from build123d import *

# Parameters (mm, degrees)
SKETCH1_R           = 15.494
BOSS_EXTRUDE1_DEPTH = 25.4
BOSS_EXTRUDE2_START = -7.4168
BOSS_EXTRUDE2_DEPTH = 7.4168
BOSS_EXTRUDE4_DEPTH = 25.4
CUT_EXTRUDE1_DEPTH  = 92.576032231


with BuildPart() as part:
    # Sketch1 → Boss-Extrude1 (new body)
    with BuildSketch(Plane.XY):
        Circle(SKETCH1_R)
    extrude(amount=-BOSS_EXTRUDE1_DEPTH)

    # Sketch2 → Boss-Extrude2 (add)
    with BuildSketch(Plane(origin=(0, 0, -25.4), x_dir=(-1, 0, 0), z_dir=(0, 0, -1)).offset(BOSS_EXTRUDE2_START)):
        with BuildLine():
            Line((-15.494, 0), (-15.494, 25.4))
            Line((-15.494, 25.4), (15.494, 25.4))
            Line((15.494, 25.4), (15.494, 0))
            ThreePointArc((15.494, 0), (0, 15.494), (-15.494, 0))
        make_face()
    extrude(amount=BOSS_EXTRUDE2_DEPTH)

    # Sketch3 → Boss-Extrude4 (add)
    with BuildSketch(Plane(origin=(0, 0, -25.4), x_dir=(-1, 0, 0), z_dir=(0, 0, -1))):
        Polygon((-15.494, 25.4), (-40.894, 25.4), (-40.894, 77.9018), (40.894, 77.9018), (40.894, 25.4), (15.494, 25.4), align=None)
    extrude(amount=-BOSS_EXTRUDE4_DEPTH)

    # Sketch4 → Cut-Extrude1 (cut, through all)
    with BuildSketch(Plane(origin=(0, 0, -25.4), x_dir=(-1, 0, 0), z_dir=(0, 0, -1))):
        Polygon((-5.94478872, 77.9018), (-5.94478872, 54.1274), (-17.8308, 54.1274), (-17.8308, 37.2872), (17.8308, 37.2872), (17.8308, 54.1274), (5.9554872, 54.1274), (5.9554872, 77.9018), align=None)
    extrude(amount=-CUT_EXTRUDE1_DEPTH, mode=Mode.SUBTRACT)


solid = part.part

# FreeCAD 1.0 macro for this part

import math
import FreeCAD as App
import Part
import Sketcher
from FreeCAD import Vector
Q = App.Units.Quantity

doc = App.newDocument("Part")
params = doc.addObject("Spreadsheet::Sheet", "Params")
for row, (alias, value) in enumerate([
    ("sketch1_diameter", "1.22 in"),
    ("pad1_length", "1 in"),
    ("sketch2_height", "1 in"),
    ("sketch2_radius", "0.61 in"),
    ("pad2_length", "0.292 in"),
    ("sketch3_width", "3.22 in"),
    ("sketch3_height", "2.067 in"),
    ("pad3_length", "1 in"),
    ("sketch4_width", "1.404 in"),
    ("sketch4_height", "0.936 in"),
    ("sketch4_height2", "0.663 in"),
], start=1):
    params.set(f"A{row}", alias)
    params.set(f"B{row}", "=" + value)
    params.setAlias(f"B{row}", alias)

body = doc.addObject("PartDesign::Body", "Body")

# Sketch on XY plane
sketch1 = body.newObject("Sketcher::SketchObject", "Sketch")
sketch1.AttachmentSupport = (doc.getObject("XY_Plane"), [""])
sketch1.MapMode = "FlatFace"
sketch1.addGeometry(Part.Circle(Vector(0, 0, 0), Vector(0, 0, 1), 15), False)
sketch1.addConstraint(Sketcher.Constraint("Coincident", 0, 3, -1, 1))
sketch1.addConstraint(Sketcher.Constraint("Diameter", 0, Q("1.22 in")))
sketch1.setExpression("Constraints[1]", "Params.sketch1_diameter")
pad1 = body.newObject("PartDesign::Pad", "Pad")
pad1.Profile = sketch1
pad1.setExpression("Length", "Params.pad1_length")
pad1.Reversed = True

# Sketch on XY plane
sketch2 = body.newObject("Sketcher::SketchObject", "Sketch001")
sketch2.AttachmentSupport = (doc.getObject("XY_Plane"), [""])
sketch2.MapMode = "FlatFace"
sketch2.AttachmentOffset = App.Placement(Vector(0, 0, -0.708 * 25.4), App.Rotation())
sketch2.addGeometry(Part.LineSegment(Vector(15, 25, 0), Vector(15, 0, 0)), False)
sketch2.addGeometry(Part.ArcOfCircle(Part.Circle(Vector(0, 0, 0), Vector(0, 0, 1), 15), math.radians(0), math.radians(180)), False)
sketch2.addGeometry(Part.LineSegment(Vector(-15, 0, 0), Vector(-15, 25, 0)), False)
sketch2.addGeometry(Part.LineSegment(Vector(-15, 25, 0), Vector(15, 25, 0)), False)
sketch2.addConstraint(Sketcher.Constraint("Tangent", 0, 2, 1, 1))
sketch2.addConstraint(Sketcher.Constraint("Tangent", 1, 2, 2, 1))
sketch2.addConstraint(Sketcher.Constraint("Coincident", 2, 2, 3, 1))
sketch2.addConstraint(Sketcher.Constraint("Coincident", 3, 2, 0, 1))
sketch2.addConstraint(Sketcher.Constraint("Vertical", 0))
sketch2.addConstraint(Sketcher.Constraint("Vertical", 2))
sketch2.addConstraint(Sketcher.Constraint("Horizontal", 3))
sketch2.addConstraint(Sketcher.Constraint("Coincident", 1, 3, -1, 1))
sketch2.addConstraint(Sketcher.Constraint("DistanceY", 0, 2, 0, 1, Q("1 in")))
sketch2.addConstraint(Sketcher.Constraint("Radius", 1, Q("0.61 in")))
sketch2.setExpression("Constraints[8]", "Params.sketch2_height")
sketch2.setExpression("Constraints[9]", "Params.sketch2_radius")
pad2 = body.newObject("PartDesign::Pad", "Pad001")
pad2.Profile = sketch2
pad2.setExpression("Length", "Params.pad2_length")
pad2.Reversed = True

# Sketch on XY plane
sketch3 = body.newObject("Sketcher::SketchObject", "Sketch002")
sketch3.AttachmentSupport = (doc.getObject("XY_Plane"), [""])
sketch3.MapMode = "FlatFace"
sketch3.AttachmentOffset = App.Placement(Vector(0, 0, -1 * 25.4), App.Rotation())
sketch3.addGeometry(Part.LineSegment(Vector(41, 25, 0), Vector(-41, 25, 0)), False)
sketch3.addGeometry(Part.LineSegment(Vector(-41, 25, 0), Vector(-41, 78, 0)), False)
sketch3.addGeometry(Part.LineSegment(Vector(-41, 78, 0), Vector(41, 78, 0)), False)
sketch3.addGeometry(Part.LineSegment(Vector(41, 78, 0), Vector(41, 25, 0)), False)
sketch3.addConstraint(Sketcher.Constraint("Coincident", 0, 2, 1, 1))
sketch3.addConstraint(Sketcher.Constraint("Coincident", 1, 2, 2, 1))
sketch3.addConstraint(Sketcher.Constraint("Coincident", 2, 2, 3, 1))
sketch3.addConstraint(Sketcher.Constraint("Coincident", 3, 2, 0, 1))
sketch3.addConstraint(Sketcher.Constraint("Horizontal", 0))
sketch3.addConstraint(Sketcher.Constraint("Vertical", 1))
sketch3.addConstraint(Sketcher.Constraint("Horizontal", 2))
sketch3.addConstraint(Sketcher.Constraint("Vertical", 3))
sketch3.addConstraint(Sketcher.Constraint("DistanceY", -1, 1, 0, 2, Q("1 in")))
sketch3.addConstraint(Sketcher.Constraint("DistanceX", 0, 2, 0, 1, Q("3.22 in")))
sketch3.addConstraint(Sketcher.Constraint("DistanceY", 1, 1, 1, 2, Q("2.067 in")))
sketch3.addConstraint(Sketcher.Constraint("DistanceX", 0, 2, -1, 1, Q("1.61 in")))
sketch3.setExpression("Constraints[9]", "Params.sketch3_width")
sketch3.setExpression("Constraints[10]", "Params.sketch3_height")
pad3 = body.newObject("PartDesign::Pad", "Pad002")
pad3.Profile = sketch3
pad3.setExpression("Length", "Params.pad3_length")

# Sketch on XY plane
sketch4 = body.newObject("Sketcher::SketchObject", "Sketch003")
sketch4.AttachmentSupport = (doc.getObject("XY_Plane"), [""])
sketch4.MapMode = "FlatFace"
sketch4.AttachmentOffset = App.Placement(Vector(0, 0, -1 * 25.4), App.Rotation())
sketch4.addGeometry(Part.LineSegment(Vector(6, 78, 0), Vector(6, 54, 0)), False)
sketch4.addGeometry(Part.LineSegment(Vector(6, 54, 0), Vector(18, 54, 0)), False)
sketch4.addGeometry(Part.LineSegment(Vector(18, 54, 0), Vector(18, 37, 0)), False)
sketch4.addGeometry(Part.LineSegment(Vector(18, 37, 0), Vector(-18, 37, 0)), False)
sketch4.addGeometry(Part.LineSegment(Vector(-18, 37, 0), Vector(-18, 54, 0)), False)
sketch4.addGeometry(Part.LineSegment(Vector(-18, 54, 0), Vector(-6, 54, 0)), False)
sketch4.addGeometry(Part.LineSegment(Vector(-6, 54, 0), Vector(-6, 78, 0)), False)
sketch4.addGeometry(Part.LineSegment(Vector(-6, 78, 0), Vector(6, 78, 0)), False)
sketch4.addConstraint(Sketcher.Constraint("Coincident", 0, 2, 1, 1))
sketch4.addConstraint(Sketcher.Constraint("Coincident", 1, 2, 2, 1))
sketch4.addConstraint(Sketcher.Constraint("Coincident", 2, 2, 3, 1))
sketch4.addConstraint(Sketcher.Constraint("Coincident", 3, 2, 4, 1))
sketch4.addConstraint(Sketcher.Constraint("Coincident", 4, 2, 5, 1))
sketch4.addConstraint(Sketcher.Constraint("Coincident", 5, 2, 6, 1))
sketch4.addConstraint(Sketcher.Constraint("Coincident", 6, 2, 7, 1))
sketch4.addConstraint(Sketcher.Constraint("Coincident", 7, 2, 0, 1))
sketch4.addConstraint(Sketcher.Constraint("Vertical", 0))
sketch4.addConstraint(Sketcher.Constraint("Horizontal", 1))
sketch4.addConstraint(Sketcher.Constraint("Vertical", 2))
sketch4.addConstraint(Sketcher.Constraint("Horizontal", 3))
sketch4.addConstraint(Sketcher.Constraint("Vertical", 4))
sketch4.addConstraint(Sketcher.Constraint("Horizontal", 5))
sketch4.addConstraint(Sketcher.Constraint("Vertical", 6))
sketch4.addConstraint(Sketcher.Constraint("Horizontal", 7))
sketch4.addConstraint(Sketcher.Constraint("Symmetric", 1, 2, 4, 2, -2))
sketch4.addConstraint(Sketcher.Constraint("DistanceX", 3, 2, 3, 1, Q("1.404 in")))
sketch4.addConstraint(Sketcher.Constraint("DistanceY", 0, 2, 0, 1, Q("0.936 in")))
sketch4.addConstraint(Sketcher.Constraint("DistanceY", 2, 2, 2, 1, Q("0.663 in")))
sketch4.addConstraint(Sketcher.Constraint("DistanceY", -1, 1, 0, 2, Q("2.131 in")))
sketch4.addConstraint(Sketcher.Constraint("DistanceX", 1, 1, 1, 2, Q("11.886011 mm")))
sketch4.addConstraint(Sketcher.Constraint("DistanceX", 5, 1, 5, 2, Q("11.875313 mm")))
sketch4.setExpression("Constraints[17]", "Params.sketch4_width")
sketch4.setExpression("Constraints[18]", "Params.sketch4_height")
sketch4.setExpression("Constraints[19]", "Params.sketch4_height2")
pocket1 = body.newObject("PartDesign::Pocket", "Pocket")
pocket1.Profile = sketch4
pocket1.Type = "ThroughAll"
pocket1.Reversed = True

doc.recompute()
